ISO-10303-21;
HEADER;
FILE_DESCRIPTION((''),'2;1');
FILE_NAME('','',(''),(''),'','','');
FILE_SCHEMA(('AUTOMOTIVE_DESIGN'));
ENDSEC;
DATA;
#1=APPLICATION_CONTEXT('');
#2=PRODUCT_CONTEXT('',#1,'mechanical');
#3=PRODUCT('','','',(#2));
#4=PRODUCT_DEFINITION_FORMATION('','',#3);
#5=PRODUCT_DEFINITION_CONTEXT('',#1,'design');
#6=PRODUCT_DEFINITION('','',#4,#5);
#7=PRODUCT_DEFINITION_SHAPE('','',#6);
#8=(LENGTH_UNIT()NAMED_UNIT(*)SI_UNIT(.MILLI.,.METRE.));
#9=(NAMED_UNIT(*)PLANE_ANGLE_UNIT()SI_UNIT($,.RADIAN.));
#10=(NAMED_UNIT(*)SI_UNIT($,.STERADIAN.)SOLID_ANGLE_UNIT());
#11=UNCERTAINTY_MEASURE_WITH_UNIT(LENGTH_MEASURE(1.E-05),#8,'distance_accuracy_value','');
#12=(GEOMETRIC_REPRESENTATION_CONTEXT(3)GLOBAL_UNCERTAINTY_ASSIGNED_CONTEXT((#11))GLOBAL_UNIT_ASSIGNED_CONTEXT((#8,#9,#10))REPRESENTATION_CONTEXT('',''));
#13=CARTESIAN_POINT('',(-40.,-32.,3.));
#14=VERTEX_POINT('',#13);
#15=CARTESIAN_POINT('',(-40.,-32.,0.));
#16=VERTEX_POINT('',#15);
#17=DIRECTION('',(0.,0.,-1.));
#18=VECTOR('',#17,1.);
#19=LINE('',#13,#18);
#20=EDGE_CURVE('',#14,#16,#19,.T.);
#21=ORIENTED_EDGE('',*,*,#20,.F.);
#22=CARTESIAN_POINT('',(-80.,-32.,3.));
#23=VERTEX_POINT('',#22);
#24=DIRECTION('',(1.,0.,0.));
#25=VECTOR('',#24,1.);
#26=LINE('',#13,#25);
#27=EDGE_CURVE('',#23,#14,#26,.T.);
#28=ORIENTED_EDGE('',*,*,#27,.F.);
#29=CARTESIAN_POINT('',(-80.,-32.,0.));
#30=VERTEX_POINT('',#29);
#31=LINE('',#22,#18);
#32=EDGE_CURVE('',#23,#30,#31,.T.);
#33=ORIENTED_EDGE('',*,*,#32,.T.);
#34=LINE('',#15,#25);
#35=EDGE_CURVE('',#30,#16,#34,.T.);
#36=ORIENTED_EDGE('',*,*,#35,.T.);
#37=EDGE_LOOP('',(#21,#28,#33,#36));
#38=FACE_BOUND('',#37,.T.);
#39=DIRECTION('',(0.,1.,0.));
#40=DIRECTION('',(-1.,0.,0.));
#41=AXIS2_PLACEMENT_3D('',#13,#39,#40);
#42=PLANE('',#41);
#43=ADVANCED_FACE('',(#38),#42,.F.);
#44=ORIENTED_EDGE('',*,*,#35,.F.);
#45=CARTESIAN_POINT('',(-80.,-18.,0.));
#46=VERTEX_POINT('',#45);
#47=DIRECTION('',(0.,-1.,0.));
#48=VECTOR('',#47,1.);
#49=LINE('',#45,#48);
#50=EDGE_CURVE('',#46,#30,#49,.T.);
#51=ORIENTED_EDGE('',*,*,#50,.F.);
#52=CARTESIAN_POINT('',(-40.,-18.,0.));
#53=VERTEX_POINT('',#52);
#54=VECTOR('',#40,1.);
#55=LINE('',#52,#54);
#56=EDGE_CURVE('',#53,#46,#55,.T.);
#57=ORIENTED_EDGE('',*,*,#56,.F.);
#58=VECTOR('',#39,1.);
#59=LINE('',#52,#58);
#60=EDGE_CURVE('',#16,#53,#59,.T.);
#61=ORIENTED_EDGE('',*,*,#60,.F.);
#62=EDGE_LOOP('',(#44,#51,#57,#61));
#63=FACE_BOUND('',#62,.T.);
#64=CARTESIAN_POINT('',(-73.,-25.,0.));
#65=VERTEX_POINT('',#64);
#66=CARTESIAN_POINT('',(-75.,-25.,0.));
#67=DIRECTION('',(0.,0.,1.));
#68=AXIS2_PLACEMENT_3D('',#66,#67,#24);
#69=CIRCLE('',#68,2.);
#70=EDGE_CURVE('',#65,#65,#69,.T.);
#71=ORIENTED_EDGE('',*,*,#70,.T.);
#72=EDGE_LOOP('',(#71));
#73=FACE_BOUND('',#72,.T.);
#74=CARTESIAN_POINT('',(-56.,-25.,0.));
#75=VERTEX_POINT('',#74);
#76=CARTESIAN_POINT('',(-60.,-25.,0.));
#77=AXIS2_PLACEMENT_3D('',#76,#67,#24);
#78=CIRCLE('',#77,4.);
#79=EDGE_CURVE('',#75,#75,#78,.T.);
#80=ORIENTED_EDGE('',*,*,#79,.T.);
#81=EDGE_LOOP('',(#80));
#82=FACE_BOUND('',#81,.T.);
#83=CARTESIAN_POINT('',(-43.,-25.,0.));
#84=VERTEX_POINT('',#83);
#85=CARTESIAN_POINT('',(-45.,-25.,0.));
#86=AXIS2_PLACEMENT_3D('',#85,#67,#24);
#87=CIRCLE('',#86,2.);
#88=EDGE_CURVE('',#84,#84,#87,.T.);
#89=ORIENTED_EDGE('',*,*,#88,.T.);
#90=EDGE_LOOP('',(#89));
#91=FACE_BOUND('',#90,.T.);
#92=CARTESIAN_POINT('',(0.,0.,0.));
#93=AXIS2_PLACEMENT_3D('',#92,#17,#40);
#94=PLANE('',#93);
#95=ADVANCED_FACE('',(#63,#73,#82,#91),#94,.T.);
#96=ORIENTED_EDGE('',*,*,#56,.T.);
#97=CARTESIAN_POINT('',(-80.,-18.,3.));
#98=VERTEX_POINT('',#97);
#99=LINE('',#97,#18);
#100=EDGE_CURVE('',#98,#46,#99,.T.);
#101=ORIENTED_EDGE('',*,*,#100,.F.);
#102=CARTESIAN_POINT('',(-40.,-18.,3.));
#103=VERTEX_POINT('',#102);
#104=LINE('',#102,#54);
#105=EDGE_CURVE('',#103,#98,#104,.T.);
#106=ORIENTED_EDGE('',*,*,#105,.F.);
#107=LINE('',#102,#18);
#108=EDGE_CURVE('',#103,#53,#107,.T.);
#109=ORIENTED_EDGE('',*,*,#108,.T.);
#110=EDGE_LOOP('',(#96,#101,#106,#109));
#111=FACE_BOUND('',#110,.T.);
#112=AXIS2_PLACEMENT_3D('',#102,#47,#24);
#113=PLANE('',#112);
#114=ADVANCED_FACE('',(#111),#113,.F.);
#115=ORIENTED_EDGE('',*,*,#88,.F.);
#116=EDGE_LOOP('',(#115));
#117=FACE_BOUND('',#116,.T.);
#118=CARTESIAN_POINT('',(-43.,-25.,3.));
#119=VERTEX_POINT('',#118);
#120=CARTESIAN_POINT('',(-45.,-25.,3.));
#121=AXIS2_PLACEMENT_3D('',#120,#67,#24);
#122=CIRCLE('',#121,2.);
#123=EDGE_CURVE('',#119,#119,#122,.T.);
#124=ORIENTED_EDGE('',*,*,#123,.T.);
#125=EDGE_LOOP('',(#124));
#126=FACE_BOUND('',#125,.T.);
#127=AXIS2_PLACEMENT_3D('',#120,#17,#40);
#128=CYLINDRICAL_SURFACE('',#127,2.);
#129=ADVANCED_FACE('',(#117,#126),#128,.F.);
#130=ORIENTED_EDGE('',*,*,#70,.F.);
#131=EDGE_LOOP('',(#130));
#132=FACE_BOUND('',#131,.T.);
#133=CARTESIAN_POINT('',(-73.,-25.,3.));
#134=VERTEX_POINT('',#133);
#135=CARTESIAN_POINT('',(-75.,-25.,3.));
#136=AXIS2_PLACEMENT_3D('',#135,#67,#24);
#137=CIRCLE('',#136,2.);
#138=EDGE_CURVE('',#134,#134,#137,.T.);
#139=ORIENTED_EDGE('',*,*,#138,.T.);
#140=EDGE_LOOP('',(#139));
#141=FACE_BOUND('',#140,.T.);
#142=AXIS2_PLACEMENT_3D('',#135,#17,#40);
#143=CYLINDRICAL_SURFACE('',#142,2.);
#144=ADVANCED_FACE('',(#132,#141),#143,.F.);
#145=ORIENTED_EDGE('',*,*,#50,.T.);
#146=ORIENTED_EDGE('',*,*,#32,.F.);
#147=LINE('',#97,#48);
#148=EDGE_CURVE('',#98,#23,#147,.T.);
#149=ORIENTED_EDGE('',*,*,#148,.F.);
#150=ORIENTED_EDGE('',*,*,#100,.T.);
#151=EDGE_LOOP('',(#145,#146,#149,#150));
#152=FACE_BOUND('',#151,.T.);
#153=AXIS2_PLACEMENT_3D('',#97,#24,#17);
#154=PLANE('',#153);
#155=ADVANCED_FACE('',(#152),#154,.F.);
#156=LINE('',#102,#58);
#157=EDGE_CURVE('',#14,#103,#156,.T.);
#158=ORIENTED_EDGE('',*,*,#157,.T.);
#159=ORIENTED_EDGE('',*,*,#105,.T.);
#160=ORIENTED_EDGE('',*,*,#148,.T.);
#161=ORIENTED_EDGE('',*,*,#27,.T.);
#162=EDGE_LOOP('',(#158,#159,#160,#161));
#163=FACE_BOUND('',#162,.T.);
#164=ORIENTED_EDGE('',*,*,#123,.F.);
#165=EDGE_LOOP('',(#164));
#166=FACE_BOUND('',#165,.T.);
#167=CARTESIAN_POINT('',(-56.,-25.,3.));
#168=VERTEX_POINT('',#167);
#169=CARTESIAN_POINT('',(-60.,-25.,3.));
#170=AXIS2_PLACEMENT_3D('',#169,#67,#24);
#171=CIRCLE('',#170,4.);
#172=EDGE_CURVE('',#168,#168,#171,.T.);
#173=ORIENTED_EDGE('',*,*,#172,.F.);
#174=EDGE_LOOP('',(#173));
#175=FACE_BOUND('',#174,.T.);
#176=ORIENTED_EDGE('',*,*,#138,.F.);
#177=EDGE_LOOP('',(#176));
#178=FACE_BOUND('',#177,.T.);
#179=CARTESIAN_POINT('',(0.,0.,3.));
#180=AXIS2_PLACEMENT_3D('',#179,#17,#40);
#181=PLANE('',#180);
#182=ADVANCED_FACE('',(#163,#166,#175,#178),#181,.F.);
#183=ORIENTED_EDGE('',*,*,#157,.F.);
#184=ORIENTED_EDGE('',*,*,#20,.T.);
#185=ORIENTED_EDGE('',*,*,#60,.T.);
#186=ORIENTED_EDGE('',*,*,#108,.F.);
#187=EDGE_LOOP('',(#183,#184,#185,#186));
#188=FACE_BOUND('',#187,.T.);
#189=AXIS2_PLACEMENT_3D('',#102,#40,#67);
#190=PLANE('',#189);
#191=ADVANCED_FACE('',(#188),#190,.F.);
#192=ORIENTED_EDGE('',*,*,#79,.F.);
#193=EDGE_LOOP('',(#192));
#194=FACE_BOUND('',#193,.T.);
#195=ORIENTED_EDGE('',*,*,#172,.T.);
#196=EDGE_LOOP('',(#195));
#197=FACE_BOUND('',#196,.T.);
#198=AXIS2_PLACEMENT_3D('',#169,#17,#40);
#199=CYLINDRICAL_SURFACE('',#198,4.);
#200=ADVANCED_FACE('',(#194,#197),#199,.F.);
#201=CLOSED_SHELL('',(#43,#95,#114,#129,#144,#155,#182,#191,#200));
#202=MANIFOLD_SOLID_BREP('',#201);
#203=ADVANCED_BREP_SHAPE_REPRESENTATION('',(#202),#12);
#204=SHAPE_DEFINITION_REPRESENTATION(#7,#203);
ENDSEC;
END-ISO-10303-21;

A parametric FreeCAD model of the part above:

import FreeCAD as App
import Part
import Sketcher

V = App.Vector
Q = App.Units.Quantity

doc = App.newDocument("Part")
body = doc.addObject("PartDesign::Body", "Body")

# Sketch on XY plane
sketch1 = body.newObject("Sketcher::SketchObject", "Sketch")
sketch1.AttachmentSupport = (doc.getObject("XY_Plane"), [""])
sketch1.MapMode = "FlatFace"
sketch1.addGeometry([
    Part.LineSegment(V(-80, -18, 0), V(-80, -32, 0)),  # 0
    Part.LineSegment(V(-80, -32, 0), V(-40, -32, 0)),  # 1
    Part.LineSegment(V(-40, -32, 0), V(-40, -18, 0)),  # 2
    Part.LineSegment(V(-40, -18, 0), V(-80, -18, 0)),  # 3
    Part.Circle(V(-75, -25, 0), V(0, 0, 1), 2),  # 4
    Part.Circle(V(-60, -25, 0), V(0, 0, 1), 4),  # 5
    Part.Circle(V(-45, -25, 0), V(0, 0, 1), 2),  # 6
], False)
sketch1.addConstraint([
    Sketcher.Constraint("Coincident", 0, 2, 1, 1),
    Sketcher.Constraint("Coincident", 1, 2, 2, 1),
    Sketcher.Constraint("Coincident", 2, 2, 3, 1),
    Sketcher.Constraint("Coincident", 3, 2, 0, 1),
    Sketcher.Constraint("Vertical", 0),
    Sketcher.Constraint("Horizontal", 1),
    Sketcher.Constraint("Vertical", 2),
    Sketcher.Constraint("Horizontal", 3),
    Sketcher.Constraint("Equal", 4, 6),
    Sketcher.Constraint("Horizontal", 4, 3, 5, 3),
    Sketcher.Constraint("Horizontal", 5, 3, 6, 3),
    Sketcher.Constraint("Diameter", 4, Q("4 mm")),
    Sketcher.Constraint("Diameter", 5, Q("8 mm")),
    Sketcher.Constraint("DistanceX", 1, 1, 1, 2, Q("40 mm")),
    Sketcher.Constraint("DistanceY", 0, 2, 0, 1, Q("14 mm")),
    Sketcher.Constraint("DistanceX", 4, 3, -1, 1, Q("75 mm")),
    Sketcher.Constraint("DistanceY", 4, 3, -1, 1, Q("25 mm")),
    Sketcher.Constraint("DistanceX", 5, 3, -1, 1, Q("60 mm")),
    Sketcher.Constraint("DistanceX", 6, 3, -1, 1, Q("45 mm")),
    Sketcher.Constraint("DistanceX", 0, 2, -1, 1, Q("80 mm")),
    Sketcher.Constraint("DistanceY", 0, 2, -1, 1, Q("32 mm")),
])
pad1 = body.newObject("PartDesign::Pad", "Pad")
pad1.Profile = sketch1
pad1.Length = 3

doc.recompute()
